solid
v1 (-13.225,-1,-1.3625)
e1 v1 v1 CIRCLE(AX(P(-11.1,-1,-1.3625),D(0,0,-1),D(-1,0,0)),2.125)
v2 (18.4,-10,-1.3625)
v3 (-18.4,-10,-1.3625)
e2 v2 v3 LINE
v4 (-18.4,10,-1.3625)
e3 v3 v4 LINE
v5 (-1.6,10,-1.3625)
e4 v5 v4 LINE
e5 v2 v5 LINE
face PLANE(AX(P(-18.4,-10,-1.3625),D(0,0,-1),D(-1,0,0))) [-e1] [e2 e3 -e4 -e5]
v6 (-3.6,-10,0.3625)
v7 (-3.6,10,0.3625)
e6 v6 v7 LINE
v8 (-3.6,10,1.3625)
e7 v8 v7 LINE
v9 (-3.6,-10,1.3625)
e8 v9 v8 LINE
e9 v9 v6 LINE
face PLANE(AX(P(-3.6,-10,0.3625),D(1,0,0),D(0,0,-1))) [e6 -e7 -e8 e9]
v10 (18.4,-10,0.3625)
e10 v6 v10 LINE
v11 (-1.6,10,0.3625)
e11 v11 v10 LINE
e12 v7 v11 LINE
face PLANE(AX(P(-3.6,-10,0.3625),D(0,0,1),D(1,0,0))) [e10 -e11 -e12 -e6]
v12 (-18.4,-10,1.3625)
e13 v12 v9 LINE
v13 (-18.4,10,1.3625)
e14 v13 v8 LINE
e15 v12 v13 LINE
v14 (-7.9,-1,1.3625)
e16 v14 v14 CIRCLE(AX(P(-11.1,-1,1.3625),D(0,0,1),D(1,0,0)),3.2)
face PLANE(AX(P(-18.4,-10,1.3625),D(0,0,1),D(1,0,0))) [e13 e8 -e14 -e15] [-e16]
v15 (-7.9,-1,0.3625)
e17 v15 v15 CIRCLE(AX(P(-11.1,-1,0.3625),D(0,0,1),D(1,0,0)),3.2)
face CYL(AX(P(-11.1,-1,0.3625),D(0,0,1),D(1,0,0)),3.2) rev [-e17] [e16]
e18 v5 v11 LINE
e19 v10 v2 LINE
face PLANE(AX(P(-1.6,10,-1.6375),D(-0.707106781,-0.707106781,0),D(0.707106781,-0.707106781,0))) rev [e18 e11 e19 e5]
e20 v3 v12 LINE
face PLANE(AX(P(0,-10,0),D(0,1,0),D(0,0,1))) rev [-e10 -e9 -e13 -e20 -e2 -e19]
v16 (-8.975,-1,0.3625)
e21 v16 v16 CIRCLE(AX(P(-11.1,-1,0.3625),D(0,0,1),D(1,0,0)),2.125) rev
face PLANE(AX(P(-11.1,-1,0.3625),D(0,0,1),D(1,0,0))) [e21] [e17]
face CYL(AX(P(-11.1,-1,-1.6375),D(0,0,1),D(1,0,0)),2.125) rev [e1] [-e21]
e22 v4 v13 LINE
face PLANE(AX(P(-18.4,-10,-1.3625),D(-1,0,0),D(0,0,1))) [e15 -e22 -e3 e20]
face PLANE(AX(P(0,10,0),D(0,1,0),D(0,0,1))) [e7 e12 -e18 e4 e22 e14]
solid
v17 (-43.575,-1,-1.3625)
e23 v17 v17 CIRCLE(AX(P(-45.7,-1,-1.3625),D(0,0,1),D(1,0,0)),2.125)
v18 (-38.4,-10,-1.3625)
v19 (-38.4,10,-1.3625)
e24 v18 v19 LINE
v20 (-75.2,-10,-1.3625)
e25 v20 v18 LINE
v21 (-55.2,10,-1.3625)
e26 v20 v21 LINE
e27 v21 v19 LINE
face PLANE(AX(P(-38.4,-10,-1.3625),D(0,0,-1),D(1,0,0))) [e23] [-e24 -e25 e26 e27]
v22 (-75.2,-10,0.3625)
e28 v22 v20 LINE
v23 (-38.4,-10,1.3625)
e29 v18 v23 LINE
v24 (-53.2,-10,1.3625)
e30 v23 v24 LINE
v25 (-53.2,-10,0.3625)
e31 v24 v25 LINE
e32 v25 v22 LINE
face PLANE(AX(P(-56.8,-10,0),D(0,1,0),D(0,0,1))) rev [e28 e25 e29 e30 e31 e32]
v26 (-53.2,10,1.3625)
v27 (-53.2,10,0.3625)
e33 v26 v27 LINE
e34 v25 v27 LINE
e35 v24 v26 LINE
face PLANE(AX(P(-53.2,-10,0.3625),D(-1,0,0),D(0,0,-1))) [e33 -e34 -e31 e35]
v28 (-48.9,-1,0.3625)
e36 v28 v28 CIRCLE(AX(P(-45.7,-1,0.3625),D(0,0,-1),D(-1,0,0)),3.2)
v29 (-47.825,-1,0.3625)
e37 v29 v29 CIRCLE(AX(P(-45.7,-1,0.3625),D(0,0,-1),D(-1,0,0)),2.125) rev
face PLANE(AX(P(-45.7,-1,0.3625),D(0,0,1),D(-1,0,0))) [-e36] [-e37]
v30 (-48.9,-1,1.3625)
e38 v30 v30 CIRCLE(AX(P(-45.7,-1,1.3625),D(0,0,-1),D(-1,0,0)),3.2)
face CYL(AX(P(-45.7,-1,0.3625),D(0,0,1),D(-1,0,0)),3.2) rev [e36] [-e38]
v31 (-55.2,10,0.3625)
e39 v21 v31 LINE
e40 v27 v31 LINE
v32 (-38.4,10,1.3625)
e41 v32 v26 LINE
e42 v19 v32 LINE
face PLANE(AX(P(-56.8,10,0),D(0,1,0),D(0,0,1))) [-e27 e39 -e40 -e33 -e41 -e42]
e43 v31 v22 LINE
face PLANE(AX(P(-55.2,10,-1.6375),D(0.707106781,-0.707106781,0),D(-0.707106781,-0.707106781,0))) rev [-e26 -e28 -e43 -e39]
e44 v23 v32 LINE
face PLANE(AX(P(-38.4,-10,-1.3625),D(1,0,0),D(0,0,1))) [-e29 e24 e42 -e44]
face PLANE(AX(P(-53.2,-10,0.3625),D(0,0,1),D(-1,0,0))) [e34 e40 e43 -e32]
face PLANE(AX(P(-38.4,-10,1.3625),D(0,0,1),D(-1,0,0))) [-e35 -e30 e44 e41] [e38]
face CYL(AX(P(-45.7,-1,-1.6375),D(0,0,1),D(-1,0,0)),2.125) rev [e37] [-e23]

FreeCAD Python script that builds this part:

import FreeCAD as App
import Part
import Sketcher

V = App.Vector


def add_polygon(sketch, points):
    """Adds a closed chain of lines whose ends are joined by coincident constraints."""
    first, n = sketch.GeometryCount, len(points)
    for a, b in zip(points, points[1:] + points[:1]):
        sketch.addGeometry(Part.LineSegment(App.Vector(*a, 0), App.Vector(*b, 0)), False)
    for i in range(n):
        sketch.addConstraint(Sketcher.Constraint("Coincident", first + i, 2, first + (i + 1) % n, 1))

doc = App.newDocument("Part")
body = doc.addObject("PartDesign::Body", "Body")

# Sketch on XZ plane
sketch1 = doc.addObject("Sketcher::SketchObject", "Sketch")
body.addObject(sketch1)
sketch1.AttachmentSupport = (doc.XZ_Plane, [""])
sketch1.MapMode = "FlatFace"
add_polygon(sketch1, [(18.4, -1.4), (-18.4, -1.4), (-18.4, 1.4), (-3.6, 1.4), (-3.6, 0.4), (18.4, 0.4)])  # lines 0-5
sketch1.addConstraint(Sketcher.Constraint("Horizontal", 0))
sketch1.addConstraint(Sketcher.Constraint("Vertical", 1))
sketch1.addConstraint(Sketcher.Constraint("Horizontal", 2))
sketch1.addConstraint(Sketcher.Constraint("Vertical", 3))
sketch1.addConstraint(Sketcher.Constraint("Horizontal", 4))
sketch1.addConstraint(Sketcher.Constraint("Vertical", 5))
sketch1.addConstraint(Sketcher.Constraint("Symmetric", 1, 2, 5, 2, -1, 1))
sketch1.addConstraint(Sketcher.Constraint("DistanceX", 4, 1, 4, 2, 22.0))
sketch1.addConstraint(Sketcher.Constraint("DistanceY", 3, 2, 3, 1, 1.0))
sketch1.addConstraint(Sketcher.Constraint("DistanceX", 0, 2, 0, 1, 36.8))
sketch1.addConstraint(Sketcher.Constraint("DistanceY", 1, 1, 1, 2, 2.725))
pad1 = doc.addObject("PartDesign::Pad", "Pad")
body.addObject(pad1)
pad1.Profile = sketch1
pad1.Type = "TwoLengths"
pad1.Length = 10
pad1.Length2 = 10
pad1.Reversed = True

# Sketch on XY plane
sketch2 = doc.addObject("Sketcher::SketchObject", "Sketch001")
body.addObject(sketch2)
sketch2.AttachmentSupport = (doc.XY_Plane, [""])
sketch2.MapMode = "FlatFace"
sketch2.AttachmentOffset = App.Placement(V(0, 0, 0.3625), App.Rotation())
add_polygon(sketch2, [(-2, 10), (18, -10), (18, 10)])  # lines 0-2
sketch2.addConstraint(Sketcher.Constraint("Vertical", 1))
sketch2.addConstraint(Sketcher.Constraint("Horizontal", 2))
sketch2.addConstraint(Sketcher.Constraint("Equal", 2, 1))
sketch2.addConstraint(Sketcher.Constraint("DistanceX", 2, 2, 2, 1, 20.0))
sketch2.addConstraint(Sketcher.Constraint("DistanceY", 0, 2, -1, 1, 10.0))
sketch2.addConstraint(Sketcher.Constraint("DistanceX", -1, 1, 0, 2, 18.4))
pocket1 = doc.addObject("PartDesign::Pocket", "Pocket")
body.addObject(pocket1)
pocket1.Profile = sketch2
pocket1.Length = 2

# Sketch on XY plane
sketch3 = doc.addObject("Sketcher::SketchObject", "Sketch002")
body.addObject(sketch3)
sketch3.AttachmentSupport = (doc.XY_Plane, [""])
sketch3.MapMode = "FlatFace"
sketch3.AttachmentOffset = App.Placement(V(0, 0, 1.3625), App.Rotation())
sketch3.addGeometry(Part.Circle(V(-11.1, -1, 0), V(0, 0, 1), 2.1), False)
sketch3.addConstraint(Sketcher.Constraint("Diameter", 0, 4.25))
sketch3.addConstraint(Sketcher.Constraint("DistanceY", 0, 3, -1, 1, 1.0))
sketch3.addConstraint(Sketcher.Constraint("DistanceX", 0, 3, -1, 1, 11.1))
pocket2 = doc.addObject("PartDesign::Pocket", "Pocket001")
body.addObject(pocket2)
pocket2.Profile = sketch3
pocket2.Length = 3

# Sketch on XY plane
sketch4 = doc.addObject("Sketcher::SketchObject", "Sketch003")
body.addObject(sketch4)
sketch4.AttachmentSupport = (doc.XY_Plane, [""])
sketch4.MapMode = "FlatFace"
sketch4.AttachmentOffset = App.Placement(V(0, 0, 1.3625), App.Rotation())
sketch4.addGeometry(Part.Circle(V(-11.1, -1, 0), V(0, 0, 1), 3.2), False)
sketch4.addConstraint(Sketcher.Constraint("Diameter", 0, 6.4))
sketch4.addConstraint(Sketcher.Constraint("DistanceY", 0, 3, -1, 1, 1.0))
sketch4.addConstraint(Sketcher.Constraint("DistanceX", 0, 3, -1, 1, 11.1))
pocket3 = doc.addObject("PartDesign::Pocket", "Pocket002")
body.addObject(pocket3)
pocket3.Profile = sketch4
pocket3.Length = 1
body2 = doc.addObject("PartDesign::Body", "Body001")
doc.recompute()

mirroring = doc.addObject("Part::Mirroring", "Mirroring")
mirroring.Source = body
mirroring.Base = V(-28.4, 0, 0)
mirroring.Normal = V(-1, 0, 0)
body2.BaseFeature = mirroring
doc.recompute()
mirroring.Visibility = False

doc.recompute()
